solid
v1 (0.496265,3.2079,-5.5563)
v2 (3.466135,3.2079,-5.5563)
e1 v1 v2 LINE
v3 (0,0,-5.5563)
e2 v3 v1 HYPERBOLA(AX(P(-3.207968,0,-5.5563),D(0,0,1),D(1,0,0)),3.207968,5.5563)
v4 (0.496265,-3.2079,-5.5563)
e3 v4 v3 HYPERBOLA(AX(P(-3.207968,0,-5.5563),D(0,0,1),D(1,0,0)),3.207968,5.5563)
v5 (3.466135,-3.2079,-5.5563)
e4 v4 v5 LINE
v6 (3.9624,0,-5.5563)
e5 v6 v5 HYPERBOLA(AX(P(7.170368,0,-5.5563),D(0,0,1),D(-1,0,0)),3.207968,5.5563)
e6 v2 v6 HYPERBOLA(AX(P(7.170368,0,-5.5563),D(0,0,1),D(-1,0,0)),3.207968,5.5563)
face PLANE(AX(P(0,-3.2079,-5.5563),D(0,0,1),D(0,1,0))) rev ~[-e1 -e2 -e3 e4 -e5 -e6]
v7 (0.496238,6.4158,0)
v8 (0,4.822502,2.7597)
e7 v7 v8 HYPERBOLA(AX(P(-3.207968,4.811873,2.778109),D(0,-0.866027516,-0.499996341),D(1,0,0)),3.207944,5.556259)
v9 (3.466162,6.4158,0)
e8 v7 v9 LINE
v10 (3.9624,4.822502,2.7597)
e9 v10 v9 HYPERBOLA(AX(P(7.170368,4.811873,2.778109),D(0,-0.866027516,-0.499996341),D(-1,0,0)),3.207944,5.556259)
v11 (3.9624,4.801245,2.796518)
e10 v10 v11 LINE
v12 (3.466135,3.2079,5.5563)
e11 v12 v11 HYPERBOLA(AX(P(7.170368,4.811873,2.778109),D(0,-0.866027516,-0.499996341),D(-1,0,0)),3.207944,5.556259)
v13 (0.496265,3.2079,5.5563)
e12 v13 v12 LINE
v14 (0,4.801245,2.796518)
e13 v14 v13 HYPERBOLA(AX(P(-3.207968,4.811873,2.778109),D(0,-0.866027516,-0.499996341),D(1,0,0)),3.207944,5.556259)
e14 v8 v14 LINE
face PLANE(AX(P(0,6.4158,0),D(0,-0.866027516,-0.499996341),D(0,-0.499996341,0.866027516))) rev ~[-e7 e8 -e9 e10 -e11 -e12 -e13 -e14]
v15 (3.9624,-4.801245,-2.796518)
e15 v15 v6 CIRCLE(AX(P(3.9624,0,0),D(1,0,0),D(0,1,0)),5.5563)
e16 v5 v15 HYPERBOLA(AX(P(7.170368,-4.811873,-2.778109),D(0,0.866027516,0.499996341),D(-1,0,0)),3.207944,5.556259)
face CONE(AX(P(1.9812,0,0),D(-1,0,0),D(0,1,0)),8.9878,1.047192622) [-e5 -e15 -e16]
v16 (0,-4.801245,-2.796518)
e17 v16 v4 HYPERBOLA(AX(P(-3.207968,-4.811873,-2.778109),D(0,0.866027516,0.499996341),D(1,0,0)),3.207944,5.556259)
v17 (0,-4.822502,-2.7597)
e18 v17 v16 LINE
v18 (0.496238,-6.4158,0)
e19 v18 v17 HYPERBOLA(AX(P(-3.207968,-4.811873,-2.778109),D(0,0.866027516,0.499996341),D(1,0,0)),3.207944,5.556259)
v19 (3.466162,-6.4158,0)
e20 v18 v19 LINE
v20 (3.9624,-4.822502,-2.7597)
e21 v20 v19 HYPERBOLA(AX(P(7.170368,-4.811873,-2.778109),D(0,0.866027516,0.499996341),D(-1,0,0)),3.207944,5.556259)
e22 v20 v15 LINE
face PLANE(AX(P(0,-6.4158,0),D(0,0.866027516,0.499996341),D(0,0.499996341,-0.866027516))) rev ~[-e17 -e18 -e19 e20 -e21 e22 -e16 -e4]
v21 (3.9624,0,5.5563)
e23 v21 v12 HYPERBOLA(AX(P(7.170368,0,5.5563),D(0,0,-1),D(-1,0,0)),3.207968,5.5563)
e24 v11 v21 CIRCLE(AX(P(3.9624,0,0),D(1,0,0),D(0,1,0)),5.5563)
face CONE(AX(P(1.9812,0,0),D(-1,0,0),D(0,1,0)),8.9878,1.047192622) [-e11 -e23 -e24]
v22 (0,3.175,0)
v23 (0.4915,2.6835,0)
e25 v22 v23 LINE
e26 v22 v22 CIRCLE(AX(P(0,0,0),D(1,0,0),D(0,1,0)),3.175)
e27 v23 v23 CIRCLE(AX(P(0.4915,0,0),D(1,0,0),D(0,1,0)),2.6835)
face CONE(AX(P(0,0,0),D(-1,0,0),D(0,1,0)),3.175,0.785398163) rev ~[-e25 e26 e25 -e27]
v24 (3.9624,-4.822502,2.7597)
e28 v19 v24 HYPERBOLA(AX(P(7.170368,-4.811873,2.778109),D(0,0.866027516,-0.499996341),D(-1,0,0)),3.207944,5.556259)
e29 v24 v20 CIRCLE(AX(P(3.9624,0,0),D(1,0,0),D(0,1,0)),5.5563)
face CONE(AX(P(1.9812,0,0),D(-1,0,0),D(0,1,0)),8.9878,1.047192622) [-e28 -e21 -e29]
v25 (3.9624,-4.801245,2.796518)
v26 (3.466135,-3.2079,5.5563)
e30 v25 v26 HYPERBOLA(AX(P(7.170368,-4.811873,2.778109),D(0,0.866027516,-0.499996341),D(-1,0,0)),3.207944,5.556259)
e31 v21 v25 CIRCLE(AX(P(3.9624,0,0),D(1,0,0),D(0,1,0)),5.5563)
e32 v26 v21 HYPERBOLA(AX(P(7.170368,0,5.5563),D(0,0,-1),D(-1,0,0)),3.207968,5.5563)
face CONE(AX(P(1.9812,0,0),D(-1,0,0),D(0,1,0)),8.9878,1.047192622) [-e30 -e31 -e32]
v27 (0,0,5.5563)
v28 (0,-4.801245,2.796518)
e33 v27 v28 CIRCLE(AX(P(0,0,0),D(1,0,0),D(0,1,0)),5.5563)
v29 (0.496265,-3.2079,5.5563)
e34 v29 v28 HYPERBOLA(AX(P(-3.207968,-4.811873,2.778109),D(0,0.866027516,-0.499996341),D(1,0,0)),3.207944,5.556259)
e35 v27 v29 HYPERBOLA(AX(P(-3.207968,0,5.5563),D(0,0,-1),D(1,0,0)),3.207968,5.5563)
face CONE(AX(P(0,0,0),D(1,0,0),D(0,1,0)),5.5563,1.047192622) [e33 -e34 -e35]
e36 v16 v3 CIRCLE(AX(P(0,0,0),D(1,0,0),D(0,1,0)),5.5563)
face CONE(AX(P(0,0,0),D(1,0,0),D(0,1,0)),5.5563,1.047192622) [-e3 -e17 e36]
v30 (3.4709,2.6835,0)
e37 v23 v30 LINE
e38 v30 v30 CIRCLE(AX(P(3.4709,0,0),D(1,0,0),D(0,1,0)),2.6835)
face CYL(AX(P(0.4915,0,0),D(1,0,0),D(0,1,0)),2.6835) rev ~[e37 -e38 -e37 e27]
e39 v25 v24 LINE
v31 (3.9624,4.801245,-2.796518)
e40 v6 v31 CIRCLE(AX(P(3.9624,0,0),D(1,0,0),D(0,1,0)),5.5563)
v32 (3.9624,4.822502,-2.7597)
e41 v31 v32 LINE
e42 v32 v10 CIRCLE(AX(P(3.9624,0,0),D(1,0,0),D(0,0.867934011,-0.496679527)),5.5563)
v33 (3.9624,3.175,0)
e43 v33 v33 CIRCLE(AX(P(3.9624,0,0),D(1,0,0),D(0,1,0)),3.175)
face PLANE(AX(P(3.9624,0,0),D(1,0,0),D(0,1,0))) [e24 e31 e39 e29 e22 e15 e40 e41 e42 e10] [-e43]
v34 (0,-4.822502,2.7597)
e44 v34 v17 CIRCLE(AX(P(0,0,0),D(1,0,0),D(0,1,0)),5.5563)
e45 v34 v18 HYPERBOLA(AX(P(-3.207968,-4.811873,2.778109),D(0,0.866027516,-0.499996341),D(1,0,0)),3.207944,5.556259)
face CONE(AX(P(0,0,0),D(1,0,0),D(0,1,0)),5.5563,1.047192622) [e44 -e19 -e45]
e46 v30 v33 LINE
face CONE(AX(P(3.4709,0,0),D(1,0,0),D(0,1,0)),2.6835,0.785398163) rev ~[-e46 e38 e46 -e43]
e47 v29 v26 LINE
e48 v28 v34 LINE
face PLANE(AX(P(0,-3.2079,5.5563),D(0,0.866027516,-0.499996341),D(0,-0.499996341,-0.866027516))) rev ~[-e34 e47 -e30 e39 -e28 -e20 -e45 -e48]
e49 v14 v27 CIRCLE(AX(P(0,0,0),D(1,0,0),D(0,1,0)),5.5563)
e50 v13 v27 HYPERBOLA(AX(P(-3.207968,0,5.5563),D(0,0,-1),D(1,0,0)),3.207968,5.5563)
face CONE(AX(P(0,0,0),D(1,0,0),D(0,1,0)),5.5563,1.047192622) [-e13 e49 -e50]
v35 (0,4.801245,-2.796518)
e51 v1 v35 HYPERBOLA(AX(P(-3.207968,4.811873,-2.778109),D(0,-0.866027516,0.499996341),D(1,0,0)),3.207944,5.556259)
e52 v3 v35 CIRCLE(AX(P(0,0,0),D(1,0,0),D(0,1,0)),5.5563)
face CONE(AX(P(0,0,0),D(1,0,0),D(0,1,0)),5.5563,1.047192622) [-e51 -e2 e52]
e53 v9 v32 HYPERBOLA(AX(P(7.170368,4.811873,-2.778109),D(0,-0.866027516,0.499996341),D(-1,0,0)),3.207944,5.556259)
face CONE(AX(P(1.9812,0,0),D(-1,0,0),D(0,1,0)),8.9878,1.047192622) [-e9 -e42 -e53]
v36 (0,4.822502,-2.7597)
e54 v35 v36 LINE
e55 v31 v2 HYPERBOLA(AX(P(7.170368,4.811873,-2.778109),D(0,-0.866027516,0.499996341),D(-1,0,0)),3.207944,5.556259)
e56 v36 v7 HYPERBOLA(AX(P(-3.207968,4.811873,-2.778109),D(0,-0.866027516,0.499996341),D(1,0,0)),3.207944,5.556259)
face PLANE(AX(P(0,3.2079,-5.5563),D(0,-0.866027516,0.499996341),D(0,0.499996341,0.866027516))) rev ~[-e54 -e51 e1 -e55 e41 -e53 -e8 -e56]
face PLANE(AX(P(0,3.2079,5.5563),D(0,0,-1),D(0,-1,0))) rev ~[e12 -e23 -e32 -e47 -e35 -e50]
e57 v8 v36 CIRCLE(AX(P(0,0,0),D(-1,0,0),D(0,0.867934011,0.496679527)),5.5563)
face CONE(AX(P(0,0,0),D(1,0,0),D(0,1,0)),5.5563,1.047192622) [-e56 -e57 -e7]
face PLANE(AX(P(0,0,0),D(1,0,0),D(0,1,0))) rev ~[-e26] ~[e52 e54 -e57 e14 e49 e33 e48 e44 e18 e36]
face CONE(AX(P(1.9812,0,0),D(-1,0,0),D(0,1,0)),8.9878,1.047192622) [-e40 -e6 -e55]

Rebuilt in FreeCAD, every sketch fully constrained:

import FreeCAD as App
import Part
import Sketcher
Q = App.Units.Quantity

doc = App.newDocument("Part")
body = doc.addObject("PartDesign::Body", "Body")

# Sketch on YZ plane
sketch1 = doc.addObject("Sketcher::SketchObject", "Sketch")
body.addObject(sketch1)
sketch1.AttachmentSupport = (doc.YZ_Plane, [""])
sketch1.MapMode = "FlatFace"
sketch1.addGeometry([
    Part.LineSegment(App.Vector(3, 6, 0), App.Vector(-3, 6, 0)),  # 0
    Part.LineSegment(App.Vector(-3, 6, 0), App.Vector(-6, 0, 0)),  # 1
    Part.LineSegment(App.Vector(-6, 0, 0), App.Vector(-3, -6, 0)),  # 2
    Part.LineSegment(App.Vector(-3, -6, 0), App.Vector(3, -6, 0)),  # 3
    Part.LineSegment(App.Vector(3, -6, 0), App.Vector(6, 0, 0)),  # 4
    Part.LineSegment(App.Vector(6, 0, 0), App.Vector(3, 6, 0)),  # 5
], False)
sketch1.addConstraint([
    Sketcher.Constraint("Coincident", 0, 2, 1, 1),
    Sketcher.Constraint("Coincident", 1, 2, 2, 1),
    Sketcher.Constraint("Coincident", 2, 2, 3, 1),
    Sketcher.Constraint("Coincident", 3, 2, 4, 1),
    Sketcher.Constraint("Coincident", 4, 2, 5, 1),
    Sketcher.Constraint("Coincident", 5, 2, 0, 1),
    Sketcher.Constraint("Horizontal", 0),
    Sketcher.Constraint("Horizontal", 3),
    Sketcher.Constraint("Symmetric", 0, 2, 3, 2, -1, 1),
    Sketcher.Constraint("Symmetric", 1, 2, 4, 2, -1, 1),
    Sketcher.Constraint("PointOnObject", 1, 2, -1),
    Sketcher.Constraint("Parallel", 2, 5),
    Sketcher.Constraint("Vertical", 0, 2, 2, 2),
    Sketcher.Constraint("Angle", 1, Q("-119.9998 deg")),
    Sketcher.Constraint("DistanceX", 0, 2, 0, 1, Q("0.2526 in")),
    Sketcher.Constraint("DistanceY", -1, 1, 0, 2, Q("0.218752 in")),
])
pad1 = doc.addObject("PartDesign::Pad", "Pad")
body.addObject(pad1)
pad1.Profile = sketch1
pad1.Length = Q("0.156 in")

# Sketch on XY plane
sketch2 = doc.addObject("Sketcher::SketchObject", "Sketch001")
body.addObject(sketch2)
sketch2.AttachmentSupport = (doc.XY_Plane, [""])
sketch2.MapMode = "FlatFace"
sketch2.addGeometry([
    Part.LineSegment(App.Vector(0, 0, 0), App.Vector(4, 0, 0)),  # 0
    Part.LineSegment(App.Vector(4, 0, 0), App.Vector(4, 3.2, 0)),  # 1
    Part.LineSegment(App.Vector(4, 3.2, 0), App.Vector(3.5, 2.7, 0)),  # 2
    Part.LineSegment(App.Vector(3.5, 2.7, 0), App.Vector(0.5, 2.7, 0)),  # 3
    Part.LineSegment(App.Vector(0.5, 2.7, 0), App.Vector(0, 3.2, 0)),  # 4
    Part.LineSegment(App.Vector(0, 3.2, 0), App.Vector(0, 0, 0)),  # 5
], False)
sketch2.addConstraint([
    Sketcher.Constraint("Coincident", 0, 2, 1, 1),
    Sketcher.Constraint("Coincident", 1, 2, 2, 1),
    Sketcher.Constraint("Coincident", 2, 2, 3, 1),
    Sketcher.Constraint("Coincident", 3, 2, 4, 1),
    Sketcher.Constraint("Coincident", 4, 2, 5, 1),
    Sketcher.Constraint("Coincident", 5, 2, 0, 1),
    Sketcher.Constraint("Horizontal", 0),
    Sketcher.Constraint("Vertical", 1),
    Sketcher.Constraint("Horizontal", 3),
    Sketcher.Constraint("Vertical", 5),
    Sketcher.Constraint("Coincident", 5, 2, -1, 1),
    Sketcher.Constraint("Perpendicular", 2, 4),
    Sketcher.Constraint("Horizontal", 1, 2, 4, 2),
    Sketcher.Constraint("Equal", 2, 4),
    Sketcher.Constraint("DistanceX", 0, 1, 0, 2, Q("0.156 in")),
    Sketcher.Constraint("DistanceY", 1, 1, 1, 2, Q("0.125 in")),
    Sketcher.Constraint("DistanceX", 3, 2, 3, 1, Q("0.1173 in")),
])
groove = doc.addObject("PartDesign::Groove", "Groove")
body.addObject(groove)
groove.Profile = sketch2
groove.ReferenceAxis = (sketch2, ["H_Axis"])
groove.Angle = 360

# Sketch on XY plane
sketch3 = doc.addObject("Sketcher::SketchObject", "Sketch002")
body.addObject(sketch3)
sketch3.AttachmentSupport = (doc.XY_Plane, [""])
sketch3.MapMode = "FlatFace"
sketch3.addGeometry([
    Part.LineSegment(App.Vector(-0.5, 56.4, 0), App.Vector(-0.5, 5.6, 0)),  # 0
    Part.LineSegment(App.Vector(-0.5, 5.6, 0), App.Vector(0, 5.6, 0)),  # 1
    Part.LineSegment(App.Vector(0, 5.6, 0), App.Vector(2, 9, 0)),  # 2
    Part.LineSegment(App.Vector(2, 9, 0), App.Vector(4, 5.6, 0)),  # 3
    Part.LineSegment(App.Vector(4, 5.6, 0), App.Vector(4.5, 5.6, 0)),  # 4
    Part.LineSegment(App.Vector(4.5, 5.6, 0), App.Vector(4.5, 56.4, 0)),  # 5
    Part.LineSegment(App.Vector(4.5, 56.4, 0), App.Vector(-0.5, 56.4, 0)),  # 6
], False)
sketch3.addConstraint([
    Sketcher.Constraint("Coincident", 0, 2, 1, 1),
    Sketcher.Constraint("Coincident", 1, 2, 2, 1),
    Sketcher.Constraint("Coincident", 2, 2, 3, 1),
    Sketcher.Constraint("Coincident", 3, 2, 4, 1),
    Sketcher.Constraint("Coincident", 4, 2, 5, 1),
    Sketcher.Constraint("Coincident", 5, 2, 6, 1),
    Sketcher.Constraint("Coincident", 6, 2, 0, 1),
    Sketcher.Constraint("Vertical", 0),
    Sketcher.Constraint("Horizontal", 1),
    Sketcher.Constraint("Horizontal", 4),
    Sketcher.Constraint("Vertical", 5),
    Sketcher.Constraint("Horizontal", 6),
    Sketcher.Constraint("PointOnObject", 1, 2, -2),
    Sketcher.Constraint("Horizontal", 1, 2, 3, 2),
    Sketcher.Constraint("Equal", 1, 4),
    Sketcher.Constraint("Equal", 2, 3),
    Sketcher.Constraint("DistanceY", 0, 2, 0, 1, Q("2 in")),
    Sketcher.Constraint("Angle", 2, Q("59.9997 deg")),
    Sketcher.Constraint("DistanceX", 1, 1, 1, 2, Q("0.02 in")),
    Sketcher.Constraint("DistanceX", 6, 2, 6, 1, Q("0.196 in")),
    Sketcher.Constraint("DistanceY", -1, 1, 0, 2, Q("0.218752 in")),
])
groove2 = doc.addObject("PartDesign::Groove", "Groove001")
body.addObject(groove2)
groove2.Profile = sketch3
groove2.ReferenceAxis = (sketch3, ["H_Axis"])
groove2.Angle = 360

doc.recompute()
